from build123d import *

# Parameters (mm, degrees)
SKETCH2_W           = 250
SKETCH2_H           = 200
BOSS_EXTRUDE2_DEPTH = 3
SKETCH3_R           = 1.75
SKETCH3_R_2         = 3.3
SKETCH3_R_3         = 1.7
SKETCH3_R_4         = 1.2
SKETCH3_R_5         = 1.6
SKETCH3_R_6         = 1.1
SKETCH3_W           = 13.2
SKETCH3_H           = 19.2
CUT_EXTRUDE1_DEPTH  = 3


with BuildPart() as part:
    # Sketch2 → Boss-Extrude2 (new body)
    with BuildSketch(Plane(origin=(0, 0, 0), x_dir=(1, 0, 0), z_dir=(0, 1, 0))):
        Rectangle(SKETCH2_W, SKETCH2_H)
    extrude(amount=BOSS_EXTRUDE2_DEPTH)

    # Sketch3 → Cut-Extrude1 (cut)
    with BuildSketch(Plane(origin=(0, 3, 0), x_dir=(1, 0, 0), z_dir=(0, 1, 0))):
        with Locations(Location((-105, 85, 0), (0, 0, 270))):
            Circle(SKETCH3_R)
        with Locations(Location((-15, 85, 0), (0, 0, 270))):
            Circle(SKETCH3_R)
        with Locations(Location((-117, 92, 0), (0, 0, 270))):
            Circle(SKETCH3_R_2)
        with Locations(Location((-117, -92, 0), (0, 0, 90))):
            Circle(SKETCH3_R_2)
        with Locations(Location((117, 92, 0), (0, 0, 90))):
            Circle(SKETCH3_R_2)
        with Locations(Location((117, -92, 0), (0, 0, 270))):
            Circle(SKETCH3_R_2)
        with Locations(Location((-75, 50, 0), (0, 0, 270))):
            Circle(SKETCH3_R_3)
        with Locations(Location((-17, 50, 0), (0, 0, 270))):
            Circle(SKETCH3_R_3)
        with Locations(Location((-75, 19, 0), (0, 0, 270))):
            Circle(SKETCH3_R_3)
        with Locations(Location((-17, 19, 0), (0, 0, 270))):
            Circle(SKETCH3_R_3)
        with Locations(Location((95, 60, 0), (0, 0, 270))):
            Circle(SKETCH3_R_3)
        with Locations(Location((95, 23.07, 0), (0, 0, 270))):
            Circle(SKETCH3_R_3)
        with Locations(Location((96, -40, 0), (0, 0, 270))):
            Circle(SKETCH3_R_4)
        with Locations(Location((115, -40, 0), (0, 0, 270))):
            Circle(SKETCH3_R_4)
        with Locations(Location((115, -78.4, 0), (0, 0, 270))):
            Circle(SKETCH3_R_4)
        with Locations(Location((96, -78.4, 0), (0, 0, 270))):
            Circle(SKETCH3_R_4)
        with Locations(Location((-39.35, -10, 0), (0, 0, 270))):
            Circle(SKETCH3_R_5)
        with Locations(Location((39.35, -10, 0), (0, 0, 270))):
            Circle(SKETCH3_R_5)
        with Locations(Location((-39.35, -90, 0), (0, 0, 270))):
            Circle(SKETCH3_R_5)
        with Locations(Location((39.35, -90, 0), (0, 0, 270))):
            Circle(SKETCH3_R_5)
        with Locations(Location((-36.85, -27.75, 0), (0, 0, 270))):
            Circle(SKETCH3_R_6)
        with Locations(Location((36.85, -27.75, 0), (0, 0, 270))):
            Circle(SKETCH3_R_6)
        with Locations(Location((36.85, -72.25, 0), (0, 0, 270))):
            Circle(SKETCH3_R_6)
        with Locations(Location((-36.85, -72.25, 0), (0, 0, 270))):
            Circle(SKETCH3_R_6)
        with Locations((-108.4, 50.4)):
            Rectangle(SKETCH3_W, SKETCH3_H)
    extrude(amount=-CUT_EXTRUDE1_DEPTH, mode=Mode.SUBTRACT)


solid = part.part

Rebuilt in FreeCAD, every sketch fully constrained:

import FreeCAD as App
import Part
import Sketcher
Q = App.Units.Quantity


def add_polygon(sketch, points):
    """Adds a closed chain of lines whose ends are joined by coincident constraints."""
    first, n = sketch.GeometryCount, len(points)
    for a, b in zip(points, points[1:] + points[:1]):
        sketch.addGeometry(Part.LineSegment(App.Vector(*a, 0), App.Vector(*b, 0)), False)
    for i in range(n):
        sketch.addConstraint(Sketcher.Constraint("Coincident", first + i, 2, first + (i + 1) % n, 1))

doc = App.newDocument("Part")
body = doc.addObject("PartDesign::Body", "Body")

sketch1 = body.newObject("Sketcher::SketchObject", "Sketch")
sketch1.AttachmentSupport = (doc.getObject("XZ_Plane"), [""])
sketch1.MapMode = "FlatFace"
add_polygon(sketch1, [(-125, -100), (-125, 100), (125, 100), (125, -100)])
sketch1.addConstraint([
    Sketcher.Constraint("Vertical", 0),
    Sketcher.Constraint("Horizontal", 1),
    Sketcher.Constraint("Vertical", 2),
    Sketcher.Constraint("Horizontal", 3),
    Sketcher.Constraint("Symmetric", 0, 2, 2, 2, -1, 1),
    Sketcher.Constraint("DistanceX", 1, 1, 1, 2, Q("250 mm")),
    Sketcher.Constraint("DistanceY", 0, 1, 0, 2, Q("200 mm")),
])
pad1 = body.newObject("PartDesign::Pad", "Pad")
pad1.Profile = sketch1
pad1.Length = 3
pad1.Reversed = True

sketch2 = body.newObject("Sketcher::SketchObject", "Sketch001")
sketch2.AttachmentSupport = (doc.getObject("XZ_Plane"), [""])
sketch2.MapMode = "FlatFace"
sketch2.AttachmentOffset = App.Placement(App.Vector(0, 0, -3), App.Rotation())
sketch2.addGeometry(Part.Circle(App.Vector(-105, -85, 0), App.Vector(0, 0, 1), 1.8), False)
sketch2.addGeometry(Part.Circle(App.Vector(-15, -85, 0), App.Vector(0, 0, 1), 1.8), False)
sketch2.addGeometry(Part.Circle(App.Vector(-117, -92, 0), App.Vector(0, 0, 1), 3.3), False)
sketch2.addGeometry(Part.Circle(App.Vector(-117, 92, 0), App.Vector(0, 0, 1), 3.3), False)
sketch2.addGeometry(Part.Circle(App.Vector(117, -92, 0), App.Vector(0, 0, 1), 3.3), False)
sketch2.addGeometry(Part.Circle(App.Vector(117, 92, 0), App.Vector(0, 0, 1), 3.3), False)
sketch2.addGeometry(Part.Circle(App.Vector(-75, -50, 0), App.Vector(0, 0, 1), 1.7), False)
sketch2.addGeometry(Part.Circle(App.Vector(-17, -50, 0), App.Vector(0, 0, 1), 1.7), False)
sketch2.addGeometry(Part.Circle(App.Vector(-75, -19, 0), App.Vector(0, 0, 1), 1.7), False)
sketch2.addGeometry(Part.Circle(App.Vector(-17, -19, 0), App.Vector(0, 0, 1), 1.7), False)
sketch2.addGeometry(Part.Circle(App.Vector(95, -60, 0), App.Vector(0, 0, 1), 1.7), False)
sketch2.addGeometry(Part.Circle(App.Vector(95, -23.1, 0), App.Vector(0, 0, 1), 1.7), False)
sketch2.addGeometry(Part.Circle(App.Vector(96, 40, 0), App.Vector(0, 0, 1), 1.2), False)
sketch2.addGeometry(Part.Circle(App.Vector(115, 40, 0), App.Vector(0, 0, 1), 1.2), False)
sketch2.addGeometry(Part.Circle(App.Vector(115, 78.4, 0), App.Vector(0, 0, 1), 1.2), False)
sketch2.addGeometry(Part.Circle(App.Vector(96, 78.4, 0), App.Vector(0, 0, 1), 1.2), False)
sketch2.addGeometry(Part.Circle(App.Vector(-39.4, 10, 0), App.Vector(0, 0, 1), 1.6), False)
sketch2.addGeometry(Part.Circle(App.Vector(39.4, 10, 0), App.Vector(0, 0, 1), 1.6), False)
sketch2.addGeometry(Part.Circle(App.Vector(-39.4, 90, 0), App.Vector(0, 0, 1), 1.6), False)
sketch2.addGeometry(Part.Circle(App.Vector(39.4, 90, 0), App.Vector(0, 0, 1), 1.6), False)
sketch2.addGeometry(Part.Circle(App.Vector(-36.9, 27.8, 0), App.Vector(0, 0, 1), 1.1), False)
sketch2.addGeometry(Part.Circle(App.Vector(36.9, 27.8, 0), App.Vector(0, 0, 1), 1.1), False)
sketch2.addGeometry(Part.Circle(App.Vector(36.9, 72.2, 0), App.Vector(0, 0, 1), 1.1), False)
sketch2.addGeometry(Part.Circle(App.Vector(-36.9, 72.2, 0), App.Vector(0, 0, 1), 1.1), False)
add_polygon(sketch2, [(-115, -60), (-115, -40.8), (-101.8, -40.8), (-101.8, -60)])
sketch2.addConstraint([
    Sketcher.Constraint("Vertical", 24),
    Sketcher.Constraint("Horizontal", 25),
    Sketcher.Constraint("Vertical", 26),
    Sketcher.Constraint("Horizontal", 27),
    Sketcher.Constraint("Equal", 0, 1),
    Sketcher.Constraint("Equal", 2, 3),
    Sketcher.Constraint("Equal", 3, 4),
    Sketcher.Constraint("Equal", 4, 5),
    Sketcher.Constraint("Equal", 6, 7),
    Sketcher.Constraint("Equal", 7, 8),
    Sketcher.Constraint("Equal", 8, 9),
    Sketcher.Constraint("Equal", 9, 10),
    Sketcher.Constraint("Equal", 10, 11),
    Sketcher.Constraint("Equal", 12, 13),
    Sketcher.Constraint("Equal", 13, 14),
    Sketcher.Constraint("Equal", 14, 15),
    Sketcher.Constraint("Equal", 16, 17),
    Sketcher.Constraint("Equal", 17, 18),
    Sketcher.Constraint("Equal", 18, 19),
    Sketcher.Constraint("Equal", 20, 21),
    Sketcher.Constraint("Equal", 21, 22),
    Sketcher.Constraint("Equal", 22, 23),
    Sketcher.Constraint("Symmetric", 3, 3, 4, 3, -1, 1),
    Sketcher.Constraint("Symmetric", 2, 3, 5, 3, -1, 1),
    Sketcher.Constraint("Symmetric", 2, 3, 4, 3, -2),
    Sketcher.Constraint("Symmetric", 16, 3, 17, 3, -2),
    Sketcher.Constraint("Symmetric", 18, 3, 19, 3, -2),
    Sketcher.Constraint("Symmetric", 20, 3, 21, 3, -2),
    Sketcher.Constraint("Symmetric", 22, 3, 23, 3, -2),
    Sketcher.Constraint("Horizontal", 0, 3, 1, 3),
    Sketcher.Constraint("Horizontal", 6, 3, 7, 3),
    Sketcher.Constraint("Horizontal", 8, 3, 9, 3),
    Sketcher.Constraint("Horizontal", 12, 3, 13, 3),
    Sketcher.Constraint("Horizontal", 14, 3, 15, 3),
    Sketcher.Constraint("Horizontal", 10, 3, 26, 2),
    Sketcher.Constraint("Vertical", 6, 3, 8, 3),
    Sketcher.Constraint("Vertical", 7, 3, 9, 3),
    Sketcher.Constraint("Vertical", 10, 3, 11, 3),
    Sketcher.Constraint("Vertical", 13, 3, 14, 3),
    Sketcher.Constraint("Vertical", 12, 3, 15, 3),
    Sketcher.Constraint("Vertical", 16, 3, 18, 3),
    Sketcher.Constraint("Vertical", 21, 3, 22, 3),
    Sketcher.Constraint("Diameter", 0, Q("3.5 mm")),
    Sketcher.Constraint("Diameter", 2, Q("6.6 mm")),
    Sketcher.Constraint("Diameter", 6, Q("3.4 mm")),
    Sketcher.Constraint("Diameter", 12, Q("2.4 mm")),
    Sketcher.Constraint("Diameter", 16, Q("3.2 mm")),
    Sketcher.Constraint("Diameter", 20, Q("2.2 mm")),
    Sketcher.Constraint("DistanceX", 25, 1, 25, 2, Q("13.2 mm")),
    Sketcher.Constraint("DistanceY", 24, 1, 24, 2, Q("19.2 mm")),
    Sketcher.Constraint("DistanceX", 0, 3, -1, 1, Q("105 mm")),
    Sketcher.Constraint("DistanceY", 0, 3, -1, 1, Q("85 mm")),
    Sketcher.Constraint("DistanceX", 1, 3, -1, 1, Q("15 mm")),
    Sketcher.Constraint("DistanceX", 2, 3, -1, 1, Q("117 mm")),
    Sketcher.Constraint("DistanceY", 2, 3, -1, 1, Q("92 mm")),
    Sketcher.Constraint("DistanceX", 6, 3, -1, 1, Q("75 mm")),
    Sketcher.Constraint("DistanceY", 6, 3, -1, 1, Q("50 mm")),
    Sketcher.Constraint("DistanceX", 7, 3, -1, 1, Q("17 mm")),
    Sketcher.Constraint("DistanceY", 8, 3, -1, 1, Q("19 mm")),
    Sketcher.Constraint("DistanceX", -1, 1, 10, 3, Q("95 mm")),
    Sketcher.Constraint("DistanceY", 10, 3, -1, 1, Q("60 mm")),
    Sketcher.Constraint("DistanceX", -1, 1, 12, 3, Q("96 mm")),
    Sketcher.Constraint("DistanceY", -1, 1, 12, 3, Q("40 mm")),
    Sketcher.Constraint("DistanceX", -1, 1, 13, 3, Q("115 mm")),
    Sketcher.Constraint("DistanceY", -1, 1, 16, 3, Q("10 mm")),
    Sketcher.Constraint("DistanceY", -1, 1, 18, 3, Q("90 mm")),
    Sketcher.Constraint("DistanceX", 24, 2, -1, 1, Q("115 mm")),
    Sketcher.Constraint("DistanceY", -1, 1, 14, 3, Q("78.4 mm")),
    Sketcher.Constraint("DistanceX", 16, 3, 17, 3, Q("78.7 mm")),
    Sketcher.Constraint("DistanceX", 16, 3, 20, 3, Q("2.5 mm")),
    Sketcher.Constraint("DistanceY", 21, 3, 22, 3, Q("44.5 mm")),
    Sketcher.Constraint("DistanceY", 11, 3, -1, 1, Q("23.07 mm")),
    Sketcher.Constraint("DistanceY", -1, 1, 20, 3, Q("27.75 mm")),
])
pocket1 = body.newObject("PartDesign::Pocket", "Pocket")
pocket1.Profile = sketch2
pocket1.Length = 3
pocket1.Reversed = True

doc.recompute()
